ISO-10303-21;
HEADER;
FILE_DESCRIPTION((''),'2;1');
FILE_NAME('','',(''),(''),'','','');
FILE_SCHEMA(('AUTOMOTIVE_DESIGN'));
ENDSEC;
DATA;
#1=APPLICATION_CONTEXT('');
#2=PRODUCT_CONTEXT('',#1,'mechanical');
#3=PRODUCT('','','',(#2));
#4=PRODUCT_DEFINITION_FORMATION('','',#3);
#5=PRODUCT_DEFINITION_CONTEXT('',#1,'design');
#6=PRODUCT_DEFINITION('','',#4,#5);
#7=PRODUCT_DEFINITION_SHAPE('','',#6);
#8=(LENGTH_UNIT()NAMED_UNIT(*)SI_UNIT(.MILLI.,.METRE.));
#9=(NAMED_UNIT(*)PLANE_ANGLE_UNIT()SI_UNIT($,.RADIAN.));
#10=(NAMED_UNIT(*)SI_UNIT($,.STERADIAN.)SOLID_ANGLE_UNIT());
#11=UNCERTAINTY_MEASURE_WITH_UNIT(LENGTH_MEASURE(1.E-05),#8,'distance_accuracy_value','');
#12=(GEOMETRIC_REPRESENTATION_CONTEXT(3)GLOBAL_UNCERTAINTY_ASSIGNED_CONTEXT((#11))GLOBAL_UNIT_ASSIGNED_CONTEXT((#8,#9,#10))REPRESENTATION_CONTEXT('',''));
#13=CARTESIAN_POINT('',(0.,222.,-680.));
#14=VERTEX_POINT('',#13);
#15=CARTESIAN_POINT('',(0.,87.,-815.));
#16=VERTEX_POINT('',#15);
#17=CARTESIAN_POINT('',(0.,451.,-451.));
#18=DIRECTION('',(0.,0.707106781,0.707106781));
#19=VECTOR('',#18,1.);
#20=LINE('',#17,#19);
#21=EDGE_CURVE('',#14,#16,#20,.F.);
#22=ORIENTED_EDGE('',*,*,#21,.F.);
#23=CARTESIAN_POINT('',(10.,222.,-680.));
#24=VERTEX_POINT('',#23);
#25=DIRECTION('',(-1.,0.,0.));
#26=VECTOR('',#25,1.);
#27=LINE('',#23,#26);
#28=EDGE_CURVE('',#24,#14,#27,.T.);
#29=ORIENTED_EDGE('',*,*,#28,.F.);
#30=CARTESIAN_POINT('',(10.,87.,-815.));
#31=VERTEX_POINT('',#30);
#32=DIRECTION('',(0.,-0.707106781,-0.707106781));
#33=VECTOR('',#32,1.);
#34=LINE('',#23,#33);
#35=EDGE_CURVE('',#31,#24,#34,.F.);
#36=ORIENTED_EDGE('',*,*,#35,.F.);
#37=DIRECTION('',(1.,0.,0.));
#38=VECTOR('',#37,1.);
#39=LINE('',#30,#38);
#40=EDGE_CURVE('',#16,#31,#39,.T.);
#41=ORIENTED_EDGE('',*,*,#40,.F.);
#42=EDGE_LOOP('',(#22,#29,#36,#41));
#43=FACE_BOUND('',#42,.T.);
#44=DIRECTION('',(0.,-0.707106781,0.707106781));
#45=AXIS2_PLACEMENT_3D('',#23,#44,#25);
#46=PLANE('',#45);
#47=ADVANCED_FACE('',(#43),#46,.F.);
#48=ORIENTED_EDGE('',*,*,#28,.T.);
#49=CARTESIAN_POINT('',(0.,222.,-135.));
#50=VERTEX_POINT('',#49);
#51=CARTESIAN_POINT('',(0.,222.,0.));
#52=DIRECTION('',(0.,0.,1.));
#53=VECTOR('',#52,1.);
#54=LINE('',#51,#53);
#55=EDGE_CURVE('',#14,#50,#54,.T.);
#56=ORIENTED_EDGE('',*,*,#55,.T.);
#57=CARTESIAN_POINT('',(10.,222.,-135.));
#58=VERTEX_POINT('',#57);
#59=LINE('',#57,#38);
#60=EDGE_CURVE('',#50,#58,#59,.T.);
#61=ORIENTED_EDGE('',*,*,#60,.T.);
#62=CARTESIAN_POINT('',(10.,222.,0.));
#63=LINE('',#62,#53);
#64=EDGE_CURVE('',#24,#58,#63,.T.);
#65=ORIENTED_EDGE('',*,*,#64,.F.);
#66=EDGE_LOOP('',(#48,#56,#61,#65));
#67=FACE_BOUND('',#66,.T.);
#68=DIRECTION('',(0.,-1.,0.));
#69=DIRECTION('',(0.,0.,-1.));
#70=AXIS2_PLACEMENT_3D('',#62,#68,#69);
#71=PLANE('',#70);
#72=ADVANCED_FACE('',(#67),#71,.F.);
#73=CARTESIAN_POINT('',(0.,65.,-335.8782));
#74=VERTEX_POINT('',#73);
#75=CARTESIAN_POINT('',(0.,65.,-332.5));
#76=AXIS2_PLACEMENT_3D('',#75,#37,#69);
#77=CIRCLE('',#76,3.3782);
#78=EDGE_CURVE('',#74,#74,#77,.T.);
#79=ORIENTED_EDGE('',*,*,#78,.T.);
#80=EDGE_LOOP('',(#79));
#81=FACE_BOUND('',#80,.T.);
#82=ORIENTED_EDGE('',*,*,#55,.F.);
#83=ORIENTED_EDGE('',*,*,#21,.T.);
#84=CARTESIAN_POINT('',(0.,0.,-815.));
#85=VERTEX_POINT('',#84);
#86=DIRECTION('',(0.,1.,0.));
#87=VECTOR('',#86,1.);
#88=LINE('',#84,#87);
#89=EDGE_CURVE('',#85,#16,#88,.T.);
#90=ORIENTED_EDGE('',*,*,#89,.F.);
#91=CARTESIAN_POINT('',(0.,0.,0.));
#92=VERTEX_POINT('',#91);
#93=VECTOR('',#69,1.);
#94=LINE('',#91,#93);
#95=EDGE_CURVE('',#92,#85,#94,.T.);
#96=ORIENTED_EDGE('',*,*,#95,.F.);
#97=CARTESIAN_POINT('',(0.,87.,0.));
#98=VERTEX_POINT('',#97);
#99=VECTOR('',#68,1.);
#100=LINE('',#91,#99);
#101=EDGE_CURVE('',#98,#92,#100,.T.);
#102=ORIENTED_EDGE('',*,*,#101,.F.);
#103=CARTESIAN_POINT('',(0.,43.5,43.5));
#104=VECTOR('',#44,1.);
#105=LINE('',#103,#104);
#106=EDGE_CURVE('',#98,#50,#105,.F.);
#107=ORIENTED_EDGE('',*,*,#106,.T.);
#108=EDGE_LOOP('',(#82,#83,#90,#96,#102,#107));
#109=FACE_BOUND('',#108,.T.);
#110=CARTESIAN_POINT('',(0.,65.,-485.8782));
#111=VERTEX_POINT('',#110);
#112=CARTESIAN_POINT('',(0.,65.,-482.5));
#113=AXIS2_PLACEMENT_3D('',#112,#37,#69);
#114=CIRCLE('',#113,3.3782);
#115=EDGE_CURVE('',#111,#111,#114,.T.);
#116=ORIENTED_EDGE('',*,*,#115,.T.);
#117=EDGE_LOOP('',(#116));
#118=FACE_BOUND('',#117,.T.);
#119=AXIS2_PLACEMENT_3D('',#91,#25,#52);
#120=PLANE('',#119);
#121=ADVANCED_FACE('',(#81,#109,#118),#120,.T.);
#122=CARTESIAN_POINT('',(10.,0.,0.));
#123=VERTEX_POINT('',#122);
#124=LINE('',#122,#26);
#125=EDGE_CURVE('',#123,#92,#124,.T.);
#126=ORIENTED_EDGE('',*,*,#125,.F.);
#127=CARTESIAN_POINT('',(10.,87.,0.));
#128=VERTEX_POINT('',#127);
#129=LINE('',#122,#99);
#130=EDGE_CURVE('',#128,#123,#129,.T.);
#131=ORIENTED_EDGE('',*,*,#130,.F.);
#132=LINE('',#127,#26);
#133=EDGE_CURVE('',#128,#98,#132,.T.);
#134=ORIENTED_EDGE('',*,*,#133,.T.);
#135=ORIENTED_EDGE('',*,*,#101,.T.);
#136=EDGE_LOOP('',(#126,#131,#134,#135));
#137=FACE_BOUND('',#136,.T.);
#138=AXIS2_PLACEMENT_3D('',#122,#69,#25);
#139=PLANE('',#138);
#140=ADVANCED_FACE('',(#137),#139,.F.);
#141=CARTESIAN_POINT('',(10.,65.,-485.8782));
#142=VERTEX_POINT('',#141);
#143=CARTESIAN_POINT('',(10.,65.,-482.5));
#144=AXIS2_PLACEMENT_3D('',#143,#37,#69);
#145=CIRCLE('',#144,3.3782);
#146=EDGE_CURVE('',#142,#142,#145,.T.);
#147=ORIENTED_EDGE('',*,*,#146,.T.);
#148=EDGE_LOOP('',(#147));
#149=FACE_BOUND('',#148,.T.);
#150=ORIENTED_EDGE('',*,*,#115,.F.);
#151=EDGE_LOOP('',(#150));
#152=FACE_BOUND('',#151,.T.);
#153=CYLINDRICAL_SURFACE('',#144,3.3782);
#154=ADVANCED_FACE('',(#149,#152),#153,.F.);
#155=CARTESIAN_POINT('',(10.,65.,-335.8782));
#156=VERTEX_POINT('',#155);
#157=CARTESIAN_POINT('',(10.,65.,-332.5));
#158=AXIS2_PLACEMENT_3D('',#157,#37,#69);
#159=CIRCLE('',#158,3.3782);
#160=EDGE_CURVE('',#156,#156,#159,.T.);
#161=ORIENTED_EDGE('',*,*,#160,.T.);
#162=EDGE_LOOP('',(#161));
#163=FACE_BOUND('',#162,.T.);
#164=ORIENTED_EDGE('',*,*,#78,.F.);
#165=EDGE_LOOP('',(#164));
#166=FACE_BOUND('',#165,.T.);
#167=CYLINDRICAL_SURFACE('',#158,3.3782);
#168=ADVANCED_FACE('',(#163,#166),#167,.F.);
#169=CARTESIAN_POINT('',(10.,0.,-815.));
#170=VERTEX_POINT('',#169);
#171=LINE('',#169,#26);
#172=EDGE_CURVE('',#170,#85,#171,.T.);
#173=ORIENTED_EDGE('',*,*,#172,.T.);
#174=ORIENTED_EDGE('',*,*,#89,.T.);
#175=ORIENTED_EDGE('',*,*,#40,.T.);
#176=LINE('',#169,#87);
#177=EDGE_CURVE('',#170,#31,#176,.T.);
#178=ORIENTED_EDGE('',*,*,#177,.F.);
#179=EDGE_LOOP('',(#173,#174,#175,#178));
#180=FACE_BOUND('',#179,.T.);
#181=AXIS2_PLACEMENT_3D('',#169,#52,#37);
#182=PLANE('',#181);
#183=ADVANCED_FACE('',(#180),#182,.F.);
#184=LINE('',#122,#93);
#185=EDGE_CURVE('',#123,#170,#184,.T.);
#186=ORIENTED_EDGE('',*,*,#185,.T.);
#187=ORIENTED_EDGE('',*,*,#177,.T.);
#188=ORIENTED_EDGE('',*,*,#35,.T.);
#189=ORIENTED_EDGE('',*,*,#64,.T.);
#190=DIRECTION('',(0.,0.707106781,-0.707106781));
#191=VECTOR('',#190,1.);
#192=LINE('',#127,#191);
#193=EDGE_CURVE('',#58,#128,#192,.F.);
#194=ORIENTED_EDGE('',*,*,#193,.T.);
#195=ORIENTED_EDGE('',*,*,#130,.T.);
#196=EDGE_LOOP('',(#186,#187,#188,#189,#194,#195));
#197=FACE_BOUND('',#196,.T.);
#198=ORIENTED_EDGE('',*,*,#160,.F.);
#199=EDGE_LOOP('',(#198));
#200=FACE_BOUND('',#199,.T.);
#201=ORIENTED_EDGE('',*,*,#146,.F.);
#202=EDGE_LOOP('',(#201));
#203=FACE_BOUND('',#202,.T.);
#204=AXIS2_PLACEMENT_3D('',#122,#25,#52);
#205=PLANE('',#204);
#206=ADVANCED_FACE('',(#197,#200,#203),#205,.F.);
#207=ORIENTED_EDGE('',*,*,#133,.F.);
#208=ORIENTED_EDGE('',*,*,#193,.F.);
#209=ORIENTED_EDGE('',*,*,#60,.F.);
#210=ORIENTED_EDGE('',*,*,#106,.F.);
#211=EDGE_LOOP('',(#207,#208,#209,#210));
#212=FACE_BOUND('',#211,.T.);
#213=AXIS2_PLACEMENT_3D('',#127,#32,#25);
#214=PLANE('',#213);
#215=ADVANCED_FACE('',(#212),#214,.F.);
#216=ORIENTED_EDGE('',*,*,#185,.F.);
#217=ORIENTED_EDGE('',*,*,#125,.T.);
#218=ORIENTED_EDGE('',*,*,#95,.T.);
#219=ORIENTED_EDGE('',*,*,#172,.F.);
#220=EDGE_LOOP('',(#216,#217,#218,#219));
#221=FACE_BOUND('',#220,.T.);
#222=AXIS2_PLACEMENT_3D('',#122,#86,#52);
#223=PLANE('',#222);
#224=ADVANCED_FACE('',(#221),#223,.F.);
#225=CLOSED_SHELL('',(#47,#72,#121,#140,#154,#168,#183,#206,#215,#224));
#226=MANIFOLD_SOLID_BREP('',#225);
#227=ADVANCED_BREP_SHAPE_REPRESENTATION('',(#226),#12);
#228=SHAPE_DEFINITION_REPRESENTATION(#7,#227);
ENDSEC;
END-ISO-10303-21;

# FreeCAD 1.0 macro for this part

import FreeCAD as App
import Part
import Sketcher
from FreeCAD import Vector
Q = App.Units.Quantity


def edges_at(feature, points):
    """Names of the edges that pass closest to the given points."""
    edges = feature.Shape.Edges
    near = lambda p: min(range(len(edges)), key=lambda i: edges[i].distToShape(Part.Vertex(*p))[0])
    return sorted({f"Edge{near(p) + 1}" for p in points})


def add_polygon(sketch, points):
    """Adds a closed chain of lines whose ends are joined by coincident constraints."""
    first, n = sketch.GeometryCount, len(points)
    for a, b in zip(points, points[1:] + points[:1]):
        sketch.addGeometry(Part.LineSegment(App.Vector(*a, 0), App.Vector(*b, 0)), False)
    for i in range(n):
        sketch.addConstraint(Sketcher.Constraint("Coincident", first + i, 2, first + (i + 1) % n, 1))

doc = App.newDocument("Part")
params = doc.addObject("Spreadsheet::Sheet", "Params")
for row, (alias, value) in enumerate([
    ("sketch1_width", "222 mm"),
    ("sketch1_height", "815 mm"),
    ("pad1_length", "10 mm"),
    ("chamfer_size", "135 mm"),
    ("hole_diameter", "6.7564 mm"),
], start=1):
    params.set(f"A{row}", alias)
    params.set(f"B{row}", "=" + value)
    params.setAlias(f"B{row}", alias)

body = doc.addObject("PartDesign::Body", "Body")

# Sketch on YZ plane
sketch1 = body.newObject("Sketcher::SketchObject", "Sketch")
sketch1.AttachmentSupport = (doc.getObject("YZ_Plane"), [""])
sketch1.MapMode = "FlatFace"
add_polygon(sketch1, [(222, 0), (0, 0), (0, -815), (222, -815)])  # lines 0-3
sketch1.addConstraint([
    Sketcher.Constraint("Horizontal", 0),
    Sketcher.Constraint("Vertical", 1),
    Sketcher.Constraint("Horizontal", 2),
    Sketcher.Constraint("Vertical", 3),
    Sketcher.Constraint("Coincident", 0, 2, -1, 1),
    Sketcher.Constraint("DistanceX", 0, 2, 0, 1, Q("222 mm")),
    Sketcher.Constraint("DistanceY", 1, 2, 1, 1, Q("815 mm")),
])
sketch1.setExpression("Constraints[9]", "Params.sketch1_width")
sketch1.setExpression("Constraints[10]", "Params.sketch1_height")
pad1 = body.newObject("PartDesign::Pad", "Pad")
pad1.Profile = sketch1
pad1.setExpression("Length", "Params.pad1_length")
doc.recompute()

chamfer = body.newObject("PartDesign::Chamfer", "Chamfer")
chamfer.Base = (pad1, edges_at(pad1, [(5, 222, 0), (5, 222, -815)]))
chamfer.setExpression("Size", "Params.chamfer_size")

# Sketch on YZ plane
sketch2 = body.newObject("Sketcher::SketchObject", "Sketch001")
sketch2.AttachmentSupport = (doc.getObject("YZ_Plane"), [""])
sketch2.MapMode = "FlatFace"
sketch2.AttachmentOffset = App.Placement(Vector(0, 0, 10), App.Rotation())
sketch2.addGeometry([
    Part.Circle(Vector(65, -482.5, 0), Vector(0, 0, 1), 3.4),
    Part.Circle(Vector(65, -332.5, 0), Vector(0, 0, 1), 3.4),
], False)
sketch2.addConstraint([
    Sketcher.Constraint("Equal", 0, 1),
    Sketcher.Constraint("Vertical", 0, 3, 1, 3),
    Sketcher.Constraint("DistanceX", -1, 1, 0, 3, Q("65 mm")),
    Sketcher.Constraint("DistanceY", 0, 3, 1, 3, Q("150 mm")),
    Sketcher.Constraint("Diameter", 0, Q("6.7564 mm")),
    Sketcher.Constraint("DistanceY", 0, 3, -1, 1, Q("482.5 mm")),
])
doc.recompute()
hole = body.newObject("PartDesign::Hole", "Hole")
hole.Profile = sketch2
hole.ThreadType = "None"
hole.setExpression("Diameter", "Params.hole_diameter")
hole.DepthType = "ThroughAll"

doc.recompute()
